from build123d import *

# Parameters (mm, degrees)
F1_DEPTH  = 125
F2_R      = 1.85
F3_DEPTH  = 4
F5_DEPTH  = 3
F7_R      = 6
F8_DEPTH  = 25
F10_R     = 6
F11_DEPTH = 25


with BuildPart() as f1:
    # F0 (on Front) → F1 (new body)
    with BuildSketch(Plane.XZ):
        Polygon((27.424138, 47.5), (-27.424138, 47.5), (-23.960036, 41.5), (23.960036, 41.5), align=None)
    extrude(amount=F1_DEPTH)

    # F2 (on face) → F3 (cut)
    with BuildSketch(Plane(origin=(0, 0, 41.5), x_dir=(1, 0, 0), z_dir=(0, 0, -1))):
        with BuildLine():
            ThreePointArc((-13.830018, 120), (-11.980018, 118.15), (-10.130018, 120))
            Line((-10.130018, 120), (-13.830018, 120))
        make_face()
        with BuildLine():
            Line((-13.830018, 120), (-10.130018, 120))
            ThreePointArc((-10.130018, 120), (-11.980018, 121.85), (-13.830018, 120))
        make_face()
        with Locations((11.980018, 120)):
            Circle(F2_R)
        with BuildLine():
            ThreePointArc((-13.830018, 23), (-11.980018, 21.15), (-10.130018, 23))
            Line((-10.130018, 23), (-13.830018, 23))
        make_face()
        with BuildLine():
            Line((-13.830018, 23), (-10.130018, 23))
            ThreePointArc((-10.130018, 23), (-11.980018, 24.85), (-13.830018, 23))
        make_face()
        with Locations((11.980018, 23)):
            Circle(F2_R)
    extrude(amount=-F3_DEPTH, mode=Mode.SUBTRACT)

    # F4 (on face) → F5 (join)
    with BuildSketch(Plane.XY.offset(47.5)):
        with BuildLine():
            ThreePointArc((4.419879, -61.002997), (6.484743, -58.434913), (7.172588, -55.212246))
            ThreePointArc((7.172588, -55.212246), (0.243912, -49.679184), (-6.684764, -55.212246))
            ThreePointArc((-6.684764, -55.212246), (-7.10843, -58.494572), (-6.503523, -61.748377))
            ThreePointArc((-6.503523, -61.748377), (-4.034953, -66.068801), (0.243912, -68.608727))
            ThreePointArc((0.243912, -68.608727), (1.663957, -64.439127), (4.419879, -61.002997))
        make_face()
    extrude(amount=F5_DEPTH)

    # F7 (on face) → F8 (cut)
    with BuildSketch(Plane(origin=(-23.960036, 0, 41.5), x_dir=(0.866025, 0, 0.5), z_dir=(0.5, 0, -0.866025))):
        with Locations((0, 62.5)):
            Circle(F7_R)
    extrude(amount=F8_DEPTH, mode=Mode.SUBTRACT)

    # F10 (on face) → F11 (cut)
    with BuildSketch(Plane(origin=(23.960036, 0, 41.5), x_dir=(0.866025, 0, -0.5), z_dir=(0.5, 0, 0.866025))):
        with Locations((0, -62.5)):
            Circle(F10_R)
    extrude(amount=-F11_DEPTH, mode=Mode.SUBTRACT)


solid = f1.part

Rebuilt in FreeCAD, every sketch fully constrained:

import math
import FreeCAD as App
import Part
import Sketcher
Q = App.Units.Quantity

doc = App.newDocument("Part")
params = doc.addObject("Spreadsheet::Sheet", "Params")
for row, (alias, value) in enumerate([
    ("pad1_length", "125 mm"),
    ("sketch2_diameter", "3.7 mm"),
    ("pocket1_length", "4 mm"),
    ("pad2_length", "3 mm"),
    ("sketch4_diameter", "12 mm"),
    ("pocket2_length", "25 mm"),
    ("sketch5_diameter", "12 mm"),
    ("pocket3_length", "25 mm"),
], start=1):
    params.set(f"A{row}", alias)
    params.set(f"B{row}", "=" + value)
    params.setAlias(f"B{row}", alias)

body = doc.addObject("PartDesign::Body", "Body")

# Sketch on XZ plane
sketch1 = body.newObject("Sketcher::SketchObject", "Sketch")
sketch1.AttachmentSupport = (doc.getObject("XZ_Plane"), [""])
sketch1.MapMode = "FlatFace"
sketch1.addGeometry(Part.LineSegment(App.Vector(27, 48, 0), App.Vector(-27, 48, 0)), False)
sketch1.addGeometry(Part.LineSegment(App.Vector(-27, 48, 0), App.Vector(-24, 42, 0)), False)
sketch1.addGeometry(Part.LineSegment(App.Vector(-24, 42, 0), App.Vector(24, 42, 0)), False)
sketch1.addGeometry(Part.LineSegment(App.Vector(24, 42, 0), App.Vector(27, 48, 0)), False)
sketch1.addConstraint(Sketcher.Constraint("Coincident", 0, 2, 1, 1))
sketch1.addConstraint(Sketcher.Constraint("Coincident", 1, 2, 2, 1))
sketch1.addConstraint(Sketcher.Constraint("Coincident", 2, 2, 3, 1))
sketch1.addConstraint(Sketcher.Constraint("Coincident", 3, 2, 0, 1))
sketch1.addConstraint(Sketcher.Constraint("Horizontal", 0))
sketch1.addConstraint(Sketcher.Constraint("Horizontal", 2))
sketch1.addConstraint(Sketcher.Constraint("Equal", 1, 3))
sketch1.addConstraint(Sketcher.Constraint("Angle", 1, Q("-59.999997 deg")))
sketch1.addConstraint(Sketcher.Constraint("DistanceY", 1, 2, 0, 2, 6.0))
sketch1.addConstraint(Sketcher.Constraint("DistanceY", -1, 1, 0, 2, 47.5))
sketch1.addConstraint(Sketcher.Constraint("DistanceX", 2, 1, 2, 2, 47.920072))
sketch1.addConstraint(Sketcher.Constraint("DistanceX", 0, 2, -1, 1, 27.424138))
pad1 = body.newObject("PartDesign::Pad", "Pad")
pad1.Profile = sketch1
pad1.setExpression("Length", "Params.pad1_length")

# Sketch on XY plane
sketch2 = body.newObject("Sketcher::SketchObject", "Sketch001")
sketch2.AttachmentSupport = (doc.getObject("XY_Plane"), [""])
sketch2.MapMode = "FlatFace"
sketch2.AttachmentOffset = App.Placement(App.Vector(0, 0, 41.5), App.Rotation())
sketch2.addGeometry(Part.Circle(App.Vector(-12, -120, 0), App.Vector(0, 0, 1), 1.9), False)
sketch2.addGeometry(Part.Circle(App.Vector(12, -120, 0), App.Vector(0, 0, 1), 1.9), False)
sketch2.addGeometry(Part.Circle(App.Vector(-12, -23, 0), App.Vector(0, 0, 1), 1.9), False)
sketch2.addGeometry(Part.Circle(App.Vector(12, -23, 0), App.Vector(0, 0, 1), 1.9), False)
sketch2.addConstraint(Sketcher.Constraint("Equal", 0, 1))
sketch2.addConstraint(Sketcher.Constraint("Equal", 1, 2))
sketch2.addConstraint(Sketcher.Constraint("Equal", 2, 3))
sketch2.addConstraint(Sketcher.Constraint("Symmetric", 0, 3, 1, 3, -2))
sketch2.addConstraint(Sketcher.Constraint("Symmetric", 2, 3, 3, 3, -2))
sketch2.addConstraint(Sketcher.Constraint("Vertical", 0, 3, 2, 3))
sketch2.addConstraint(Sketcher.Constraint("Diameter", 0, 3.7))
sketch2.addConstraint(Sketcher.Constraint("DistanceY", 0, 3, -1, 1, 120.0))
sketch2.addConstraint(Sketcher.Constraint("DistanceY", 2, 3, -1, 1, 23.0))
sketch2.addConstraint(Sketcher.Constraint("DistanceX", 0, 3, -1, 1, 11.980018))
sketch2.setExpression("Constraints[6]", "Params.sketch2_diameter")
pocket1 = body.newObject("PartDesign::Pocket", "Pocket")
pocket1.Profile = sketch2
pocket1.setExpression("Length", "Params.pocket1_length")
pocket1.Reversed = True

# Sketch on XY plane
sketch3 = body.newObject("Sketcher::SketchObject", "Sketch002")
sketch3.AttachmentSupport = (doc.getObject("XY_Plane"), [""])
sketch3.MapMode = "FlatFace"
sketch3.AttachmentOffset = App.Placement(App.Vector(0, 0, 47.5), App.Rotation())
sketch3.addGeometry(Part.ArcOfCircle(Part.Circle(App.Vector(0, -55, 0), App.Vector(0, 0, 1), 7), math.radians(-52), math.radians(1)), False)
sketch3.addGeometry(Part.ArcOfCircle(Part.Circle(App.Vector(0, -57, 0), App.Vector(0, 0, 1), 7), math.radians(13), math.radians(167)), False)
sketch3.addGeometry(Part.ArcOfCircle(Part.Circle(App.Vector(4, -58, 0), App.Vector(0, 0, 1), 11), math.radians(164), math.radians(199)), False)
sketch3.addGeometry(Part.ArcOfCircle(Part.Circle(App.Vector(3, -59, 0), App.Vector(0, 0, 1), 10), math.radians(-165), math.radians(-106)), False)
sketch3.addGeometry(Part.ArcOfCircle(Part.Circle(App.Vector(13, -71, 0), App.Vector(0, 0, 1), 13), math.radians(131), math.radians(171)), False)
sketch3.addConstraint(Sketcher.Constraint("Coincident", 0, 2, 1, 1))
sketch3.addConstraint(Sketcher.Constraint("Coincident", 1, 2, 2, 1))
sketch3.addConstraint(Sketcher.Constraint("Coincident", 2, 2, 3, 1))
sketch3.addConstraint(Sketcher.Constraint("Coincident", 3, 2, 4, 2))
sketch3.addConstraint(Sketcher.Constraint("Coincident", 4, 1, 0, 1))
sketch3.addConstraint(Sketcher.Constraint("Horizontal", 0, 2, 1, 2))
sketch3.addConstraint(Sketcher.Constraint("Vertical", 1, 3, 3, 2))
sketch3.addConstraint(Sketcher.Constraint("Radius", 0, 7.121947))
sketch3.addConstraint(Sketcher.Constraint("Radius", 1, 7.104685))
sketch3.addConstraint(Sketcher.Constraint("Radius", 2, 10.644796))
sketch3.addConstraint(Sketcher.Constraint("Radius", 3, 9.751213))
sketch3.addConstraint(Sketcher.Constraint("Radius", 4, 12.731116))
sketch3.addConstraint(Sketcher.Constraint("DistanceX", 1, 3, 4, 3, 12.5797))
sketch3.addConstraint(Sketcher.Constraint("DistanceX", 2, 2, 2, 3, 10.035799))
sketch3.addConstraint(Sketcher.Constraint("DistanceY", 0, 3, -1, 1, 55.377288))
sketch3.addConstraint(Sketcher.Constraint("DistanceY", 1, 3, -1, 1, 56.783869))
sketch3.addConstraint(Sketcher.Constraint("DistanceX", -1, 1, 3, 3, 2.917172))
sketch3.addConstraint(Sketcher.Constraint("DistanceX", -1, 1, 4, 3, 12.823612))
sketch3.addConstraint(Sketcher.Constraint("DistanceX", -1, 1, 4, 1, 4.419879))
sketch3.addConstraint(Sketcher.Constraint("DistanceX", 0, 3, 1, 3, 0.191358))
pad2 = body.newObject("PartDesign::Pad", "Pad001")
pad2.Profile = sketch3
pad2.setExpression("Length", "Params.pad2_length")

# Sketch on an angled plane
sketch4 = body.newObject("Sketcher::SketchObject", "Sketch003")
sketch4.Placement = App.Placement(App.Vector(-23.960036, 0, 41.5), App.Rotation(App.Vector(0.866025303, 0, 0.500000175), App.Vector(0, -1, 0), App.Vector(0.500000175, 0, -0.866025303), "ZXY"))
sketch4.addGeometry(Part.Circle(App.Vector(0, 63, 0), App.Vector(0, 0, 1), 6), False)
sketch4.addConstraint(Sketcher.Constraint("PointOnObject", 0, 3, -2))
sketch4.addConstraint(Sketcher.Constraint("Diameter", 0, 12.0))
sketch4.addConstraint(Sketcher.Constraint("DistanceY", -1, 1, 0, 3, 62.5))
sketch4.setExpression("Constraints[1]", "Params.sketch4_diameter")
pocket2 = body.newObject("PartDesign::Pocket", "Pocket001")
pocket2.Profile = sketch4
pocket2.setExpression("Length", "Params.pocket2_length")
pocket2.Reversed = True

# Sketch on an angled plane
sketch5 = body.newObject("Sketcher::SketchObject", "Sketch004")
sketch5.Placement = App.Placement(App.Vector(23.960036, 0, 41.5), App.Rotation(App.Vector(0.866025303, 0, -0.500000175), App.Vector(0, 1, 0), App.Vector(0.500000175, 0, 0.866025303), "ZXY"))
sketch5.addGeometry(Part.Circle(App.Vector(0, -63, 0), App.Vector(0, 0, 1), 6), False)
sketch5.addConstraint(Sketcher.Constraint("PointOnObject", 0, 3, -2))
sketch5.addConstraint(Sketcher.Constraint("Diameter", 0, 12.0))
sketch5.addConstraint(Sketcher.Constraint("DistanceY", 0, 3, -1, 1, 62.5))
sketch5.setExpression("Constraints[1]", "Params.sketch5_diameter")
pocket3 = body.newObject("PartDesign::Pocket", "Pocket002")
pocket3.Profile = sketch5
pocket3.setExpression("Length", "Params.pocket3_length")

doc.recompute()
